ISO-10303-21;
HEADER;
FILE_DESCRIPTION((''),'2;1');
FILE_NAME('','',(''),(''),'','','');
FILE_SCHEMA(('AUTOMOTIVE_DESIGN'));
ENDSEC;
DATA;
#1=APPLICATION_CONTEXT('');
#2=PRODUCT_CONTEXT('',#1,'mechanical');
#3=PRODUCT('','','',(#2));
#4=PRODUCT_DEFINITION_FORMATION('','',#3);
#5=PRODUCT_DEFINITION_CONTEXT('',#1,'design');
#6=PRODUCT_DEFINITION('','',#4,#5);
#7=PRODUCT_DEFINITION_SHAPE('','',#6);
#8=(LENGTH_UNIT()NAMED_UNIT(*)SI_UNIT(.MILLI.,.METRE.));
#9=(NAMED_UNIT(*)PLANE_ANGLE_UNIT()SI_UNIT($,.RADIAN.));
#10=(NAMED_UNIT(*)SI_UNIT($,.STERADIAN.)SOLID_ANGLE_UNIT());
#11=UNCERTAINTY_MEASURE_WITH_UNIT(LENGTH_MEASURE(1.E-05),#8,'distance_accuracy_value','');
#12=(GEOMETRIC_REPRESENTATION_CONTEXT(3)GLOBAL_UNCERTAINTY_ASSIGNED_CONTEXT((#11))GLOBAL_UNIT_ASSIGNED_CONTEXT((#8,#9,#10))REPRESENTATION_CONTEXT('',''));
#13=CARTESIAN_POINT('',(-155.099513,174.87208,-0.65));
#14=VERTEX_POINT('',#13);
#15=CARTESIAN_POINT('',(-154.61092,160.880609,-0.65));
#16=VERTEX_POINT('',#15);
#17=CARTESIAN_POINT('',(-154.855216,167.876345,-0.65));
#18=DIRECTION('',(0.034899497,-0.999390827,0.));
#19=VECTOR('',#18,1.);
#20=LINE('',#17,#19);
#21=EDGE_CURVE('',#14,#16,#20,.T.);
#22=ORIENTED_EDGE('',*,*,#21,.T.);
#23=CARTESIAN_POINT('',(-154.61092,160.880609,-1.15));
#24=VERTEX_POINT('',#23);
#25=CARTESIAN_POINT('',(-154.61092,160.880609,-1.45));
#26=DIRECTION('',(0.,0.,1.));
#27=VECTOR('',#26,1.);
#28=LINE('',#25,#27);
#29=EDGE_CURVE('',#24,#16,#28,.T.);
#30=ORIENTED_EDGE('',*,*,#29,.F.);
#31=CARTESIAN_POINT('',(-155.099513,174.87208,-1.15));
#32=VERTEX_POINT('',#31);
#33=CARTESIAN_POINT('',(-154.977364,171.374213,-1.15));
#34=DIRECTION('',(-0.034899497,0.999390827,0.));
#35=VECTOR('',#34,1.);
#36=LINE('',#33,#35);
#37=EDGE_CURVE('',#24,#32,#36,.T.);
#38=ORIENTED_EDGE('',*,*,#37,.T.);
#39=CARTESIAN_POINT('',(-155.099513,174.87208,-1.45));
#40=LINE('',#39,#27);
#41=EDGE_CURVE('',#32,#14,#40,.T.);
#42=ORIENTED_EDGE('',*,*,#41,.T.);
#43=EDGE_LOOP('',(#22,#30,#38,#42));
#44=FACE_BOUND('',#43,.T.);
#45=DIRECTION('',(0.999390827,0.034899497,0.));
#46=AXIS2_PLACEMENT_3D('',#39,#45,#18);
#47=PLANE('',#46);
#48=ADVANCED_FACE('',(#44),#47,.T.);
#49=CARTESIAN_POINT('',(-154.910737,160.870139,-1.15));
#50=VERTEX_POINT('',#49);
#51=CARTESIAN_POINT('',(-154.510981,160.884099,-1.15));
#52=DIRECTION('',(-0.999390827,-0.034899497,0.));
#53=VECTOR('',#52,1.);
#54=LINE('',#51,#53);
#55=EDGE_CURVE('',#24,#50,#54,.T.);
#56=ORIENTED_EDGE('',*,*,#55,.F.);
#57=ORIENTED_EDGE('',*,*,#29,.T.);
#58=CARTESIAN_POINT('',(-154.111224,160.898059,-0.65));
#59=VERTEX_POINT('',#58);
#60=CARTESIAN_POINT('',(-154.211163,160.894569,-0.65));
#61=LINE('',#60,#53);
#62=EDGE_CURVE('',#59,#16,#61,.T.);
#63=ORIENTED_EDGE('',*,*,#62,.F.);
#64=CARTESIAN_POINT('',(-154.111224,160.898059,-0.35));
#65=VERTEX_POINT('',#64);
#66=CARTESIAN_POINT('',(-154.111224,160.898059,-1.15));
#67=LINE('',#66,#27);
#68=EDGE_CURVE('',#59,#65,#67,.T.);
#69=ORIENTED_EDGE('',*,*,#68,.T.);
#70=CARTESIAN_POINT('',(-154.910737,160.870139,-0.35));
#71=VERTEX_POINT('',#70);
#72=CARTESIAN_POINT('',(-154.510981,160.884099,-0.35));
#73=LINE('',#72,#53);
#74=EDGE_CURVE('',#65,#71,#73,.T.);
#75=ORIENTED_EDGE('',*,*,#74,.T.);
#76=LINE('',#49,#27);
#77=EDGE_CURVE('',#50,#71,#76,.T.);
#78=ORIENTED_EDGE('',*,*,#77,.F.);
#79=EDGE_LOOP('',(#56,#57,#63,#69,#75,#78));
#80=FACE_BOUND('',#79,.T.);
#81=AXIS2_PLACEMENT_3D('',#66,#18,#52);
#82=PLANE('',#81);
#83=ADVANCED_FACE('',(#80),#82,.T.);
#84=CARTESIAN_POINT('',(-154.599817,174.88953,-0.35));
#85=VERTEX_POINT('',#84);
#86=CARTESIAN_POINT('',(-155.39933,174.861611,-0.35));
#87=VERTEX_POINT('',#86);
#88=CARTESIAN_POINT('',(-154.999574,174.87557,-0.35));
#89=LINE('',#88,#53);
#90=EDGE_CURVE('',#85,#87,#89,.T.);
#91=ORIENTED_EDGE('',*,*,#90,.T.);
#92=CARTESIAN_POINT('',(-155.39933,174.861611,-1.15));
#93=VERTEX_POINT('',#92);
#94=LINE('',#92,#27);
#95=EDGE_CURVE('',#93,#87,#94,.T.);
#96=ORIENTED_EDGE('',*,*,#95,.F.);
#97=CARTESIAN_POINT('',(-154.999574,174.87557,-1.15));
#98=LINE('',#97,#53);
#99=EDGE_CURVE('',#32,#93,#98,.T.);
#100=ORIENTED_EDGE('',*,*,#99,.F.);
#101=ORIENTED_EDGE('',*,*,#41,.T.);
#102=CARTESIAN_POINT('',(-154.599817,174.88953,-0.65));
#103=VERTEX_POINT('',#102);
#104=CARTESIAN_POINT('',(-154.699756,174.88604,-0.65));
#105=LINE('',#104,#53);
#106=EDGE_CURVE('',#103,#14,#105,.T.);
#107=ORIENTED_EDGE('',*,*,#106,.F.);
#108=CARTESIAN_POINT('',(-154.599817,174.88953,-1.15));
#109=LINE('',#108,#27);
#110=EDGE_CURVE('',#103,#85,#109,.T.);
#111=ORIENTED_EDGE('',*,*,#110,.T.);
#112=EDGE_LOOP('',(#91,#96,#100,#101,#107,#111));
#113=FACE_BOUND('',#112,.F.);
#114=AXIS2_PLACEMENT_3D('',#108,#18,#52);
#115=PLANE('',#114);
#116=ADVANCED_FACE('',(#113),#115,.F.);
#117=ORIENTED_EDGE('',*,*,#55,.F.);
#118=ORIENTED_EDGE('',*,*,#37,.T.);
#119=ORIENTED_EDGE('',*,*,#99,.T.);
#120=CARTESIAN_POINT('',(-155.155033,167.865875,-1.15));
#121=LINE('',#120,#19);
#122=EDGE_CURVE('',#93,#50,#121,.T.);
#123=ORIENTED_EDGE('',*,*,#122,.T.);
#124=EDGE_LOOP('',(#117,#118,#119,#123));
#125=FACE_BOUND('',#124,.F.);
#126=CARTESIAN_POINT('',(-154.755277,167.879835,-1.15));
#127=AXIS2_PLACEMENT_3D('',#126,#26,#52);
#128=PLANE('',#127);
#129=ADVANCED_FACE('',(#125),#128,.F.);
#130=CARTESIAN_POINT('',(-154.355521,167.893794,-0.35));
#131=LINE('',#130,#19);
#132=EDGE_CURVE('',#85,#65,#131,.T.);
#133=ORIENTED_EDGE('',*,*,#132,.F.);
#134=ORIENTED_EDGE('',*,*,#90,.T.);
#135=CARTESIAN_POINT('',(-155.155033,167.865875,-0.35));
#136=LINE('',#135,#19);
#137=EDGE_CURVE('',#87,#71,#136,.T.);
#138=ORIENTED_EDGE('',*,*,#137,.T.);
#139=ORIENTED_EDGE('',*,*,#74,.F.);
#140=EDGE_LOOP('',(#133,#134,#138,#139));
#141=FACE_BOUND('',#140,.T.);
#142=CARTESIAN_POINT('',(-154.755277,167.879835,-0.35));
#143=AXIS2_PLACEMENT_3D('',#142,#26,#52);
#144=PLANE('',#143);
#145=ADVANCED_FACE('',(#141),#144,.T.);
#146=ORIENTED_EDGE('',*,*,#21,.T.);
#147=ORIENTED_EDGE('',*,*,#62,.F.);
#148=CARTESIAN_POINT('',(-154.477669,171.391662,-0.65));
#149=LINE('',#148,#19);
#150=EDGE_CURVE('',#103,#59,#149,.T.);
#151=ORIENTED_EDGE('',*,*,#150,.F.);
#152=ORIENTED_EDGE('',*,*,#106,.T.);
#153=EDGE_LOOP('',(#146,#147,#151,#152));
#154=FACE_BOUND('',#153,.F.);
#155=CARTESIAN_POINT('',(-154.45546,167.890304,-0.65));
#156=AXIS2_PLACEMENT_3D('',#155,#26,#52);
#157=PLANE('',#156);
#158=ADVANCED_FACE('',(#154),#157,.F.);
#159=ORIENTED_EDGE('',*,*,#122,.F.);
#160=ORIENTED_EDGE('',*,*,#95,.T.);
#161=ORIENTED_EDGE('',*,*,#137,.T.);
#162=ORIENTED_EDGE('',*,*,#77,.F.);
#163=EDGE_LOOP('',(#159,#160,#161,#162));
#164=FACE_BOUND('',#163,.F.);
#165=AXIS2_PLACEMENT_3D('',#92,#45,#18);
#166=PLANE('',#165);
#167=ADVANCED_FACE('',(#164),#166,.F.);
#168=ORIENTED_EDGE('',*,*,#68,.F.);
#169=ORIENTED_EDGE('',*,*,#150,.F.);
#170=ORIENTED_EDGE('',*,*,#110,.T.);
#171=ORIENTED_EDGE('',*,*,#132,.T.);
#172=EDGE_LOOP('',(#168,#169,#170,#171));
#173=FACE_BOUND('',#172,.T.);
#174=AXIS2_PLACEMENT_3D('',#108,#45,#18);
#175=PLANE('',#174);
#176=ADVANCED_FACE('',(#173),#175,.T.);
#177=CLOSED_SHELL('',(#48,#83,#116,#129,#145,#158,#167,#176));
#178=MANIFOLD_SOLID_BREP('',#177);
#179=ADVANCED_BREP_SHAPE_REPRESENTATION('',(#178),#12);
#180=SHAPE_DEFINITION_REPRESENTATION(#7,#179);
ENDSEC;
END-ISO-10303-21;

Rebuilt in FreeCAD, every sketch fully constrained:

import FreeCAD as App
import Part
import Sketcher
from FreeCAD import Vector
Q = App.Units.Quantity


def add_polygon(sketch, points):
    """Adds a closed chain of lines whose ends are joined by coincident constraints."""
    first, n = sketch.GeometryCount, len(points)
    for a, b in zip(points, points[1:] + points[:1]):
        sketch.addGeometry(Part.LineSegment(App.Vector(*a, 0), App.Vector(*b, 0)), False)
    for i in range(n):
        sketch.addConstraint(Sketcher.Constraint("Coincident", first + i, 2, first + (i + 1) % n, 1))

doc = App.newDocument("Part")
body = doc.addObject("PartDesign::Body", "Body")

# Sketch on XY plane
sketch1 = doc.addObject("Sketcher::SketchObject", "Sketch")
body.addObject(sketch1)
sketch1.AttachmentSupport = (doc.XY_Plane, [""])
sketch1.MapMode = "FlatFace"
add_polygon(sketch1, [(0, 14), (0, 0), (0.8, 0), (0.8, 14)])  # lines 0-3
sketch1.addConstraint(Sketcher.Constraint("Vertical", 0))
sketch1.addConstraint(Sketcher.Constraint("Horizontal", 1))
sketch1.addConstraint(Sketcher.Constraint("Vertical", 2))
sketch1.addConstraint(Sketcher.Constraint("Horizontal", 3))
sketch1.addConstraint(Sketcher.Constraint("Coincident", 0, 2, -1, 1))
sketch1.addConstraint(Sketcher.Constraint("DistanceY", 0, 2, 0, 1, Q("14 mm")))
sketch1.addConstraint(Sketcher.Constraint("DistanceX", 1, 1, 1, 2, Q("0.8 mm")))
pad1 = doc.addObject("PartDesign::Pad", "Pad")
body.addObject(pad1)
pad1.Profile = sketch1
pad1.Length = 0.8
body2 = doc.addObject("PartDesign::Body", "Body001")

# Sketch on XY plane
sketch2 = doc.addObject("Sketcher::SketchObject", "Sketch001")
body2.addObject(sketch2)
sketch2.AttachmentSupport = (doc.getObject("XY_Plane001"), [""])
sketch2.MapMode = "FlatFace"
sketch2.AttachmentOffset = App.Placement(Vector(0, 0, 0.3), App.Rotation())
add_polygon(sketch2, [(0.3, 14), (0.3, 0), (1.1, 0), (1.1, 14)])  # lines 0-3
sketch2.addConstraint(Sketcher.Constraint("Vertical", 0))
sketch2.addConstraint(Sketcher.Constraint("Horizontal", 1))
sketch2.addConstraint(Sketcher.Constraint("Vertical", 2))
sketch2.addConstraint(Sketcher.Constraint("Horizontal", 3))
sketch2.addConstraint(Sketcher.Constraint("PointOnObject", 0, 2, -1))
sketch2.addConstraint(Sketcher.Constraint("DistanceY", 0, 2, 0, 1, Q("14 mm")))
sketch2.addConstraint(Sketcher.Constraint("DistanceX", 1, 1, 1, 2, Q("0.8 mm")))
sketch2.addConstraint(Sketcher.Constraint("DistanceX", -1, 1, 0, 2, Q("0.3 mm")))
pad2 = doc.addObject("PartDesign::Pad", "Pad001")
body2.addObject(pad2)
pad2.Profile = sketch2
pad2.Length = 0.8
doc.recompute()

boolean = doc.addObject("PartDesign::Boolean", "Boolean")
body2.addObject(boolean)
boolean.Type = "Cut"
boolean.addObjects([body])
body3 = doc.addObject("PartDesign::Body", "Body002")
doc.recompute()

body2.Placement = App.Placement(Vector(-154.3, 174.9, -1.45), App.Rotation(Vector(0, 0, 1), 182))
boolean2 = doc.addObject("PartDesign::Boolean", "Boolean001")
body3.addObject(boolean2)
boolean2.Type = "Fuse"
boolean2.addObjects([body2])

doc.recompute()
